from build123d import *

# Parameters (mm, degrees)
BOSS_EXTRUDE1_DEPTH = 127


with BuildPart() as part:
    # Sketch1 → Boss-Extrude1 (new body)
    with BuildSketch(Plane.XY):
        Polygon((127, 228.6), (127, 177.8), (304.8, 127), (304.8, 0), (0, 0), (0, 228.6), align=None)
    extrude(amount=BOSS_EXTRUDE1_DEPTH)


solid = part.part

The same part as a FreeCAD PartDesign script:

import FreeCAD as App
import Part
import Sketcher
from FreeCAD import Vector
Q = App.Units.Quantity


def add_polygon(sketch, points):
    """Adds a closed chain of lines whose ends are joined by coincident constraints."""
    first, n = sketch.GeometryCount, len(points)
    for a, b in zip(points, points[1:] + points[:1]):
        sketch.addGeometry(Part.LineSegment(App.Vector(*a, 0), App.Vector(*b, 0)), False)
    for i in range(n):
        sketch.addConstraint(Sketcher.Constraint("Coincident", first + i, 2, first + (i + 1) % n, 1))

doc = App.newDocument("Part")
body = doc.addObject("PartDesign::Body", "Body")

# Sketch on XY plane
sketch1 = body.newObject("Sketcher::SketchObject", "Sketch")
sketch1.AttachmentSupport = (doc.getObject("XY_Plane"), [""])
sketch1.MapMode = "FlatFace"
add_polygon(sketch1, [(127, 178), (127, 229), (0, 229), (0, 0), (305, 0), (305, 127)])  # lines 0-5
sketch1.addConstraint(Sketcher.Constraint("Vertical", 0))
sketch1.addConstraint(Sketcher.Constraint("Horizontal", 1))
sketch1.addConstraint(Sketcher.Constraint("Vertical", 2))
sketch1.addConstraint(Sketcher.Constraint("Horizontal", 3))
sketch1.addConstraint(Sketcher.Constraint("Vertical", 4))
sketch1.addConstraint(Sketcher.Constraint("Coincident", 2, 2, -1, 1))
sketch1.addConstraint(Sketcher.Constraint("Equal", 1, 4))
sketch1.addConstraint(Sketcher.Constraint("DistanceX", 1, 2, 1, 1, Q("5 in")))
sketch1.addConstraint(Sketcher.Constraint("DistanceX", 3, 1, 3, 2, Q("12 in")))
sketch1.addConstraint(Sketcher.Constraint("DistanceY", 0, 1, 0, 2, Q("2 in")))
sketch1.addConstraint(Sketcher.Constraint("DistanceY", 2, 2, 2, 1, Q("9 in")))
pad1 = body.newObject("PartDesign::Pad", "Pad")
pad1.Profile = sketch1
pad1.Length = Q("5 in")

doc.recompute()
